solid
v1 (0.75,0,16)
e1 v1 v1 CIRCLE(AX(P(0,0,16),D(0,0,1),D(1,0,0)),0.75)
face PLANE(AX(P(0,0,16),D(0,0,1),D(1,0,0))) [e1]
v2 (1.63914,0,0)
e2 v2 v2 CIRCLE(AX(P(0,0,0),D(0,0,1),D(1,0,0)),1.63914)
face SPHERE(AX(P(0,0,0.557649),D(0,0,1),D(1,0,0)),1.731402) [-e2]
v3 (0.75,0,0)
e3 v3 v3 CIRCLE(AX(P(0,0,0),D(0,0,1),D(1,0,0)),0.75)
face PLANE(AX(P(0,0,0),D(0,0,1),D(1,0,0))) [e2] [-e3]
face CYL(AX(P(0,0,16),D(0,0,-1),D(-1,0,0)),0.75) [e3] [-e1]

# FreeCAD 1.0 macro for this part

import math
import FreeCAD as App
import Part
import Sketcher
from FreeCAD import Vector

doc = App.newDocument("Part")
params = doc.addObject("Spreadsheet::Sheet", "Params")
for row, (alias, value) in enumerate([
    ("sketch1_diameter", "1.5 mm"),
    ("pad1_length", "16 mm"),
    ("revolution_angle", "360 deg"),
], start=1):
    params.set(f"A{row}", alias)
    params.set(f"B{row}", "=" + value)
    params.setAlias(f"B{row}", alias)

body = doc.addObject("PartDesign::Body", "Body")

sketch1 = doc.addObject("Sketcher::SketchObject", "Sketch")
body.addObject(sketch1)
sketch1.AttachmentSupport = (doc.XY_Plane, [""])
sketch1.MapMode = "FlatFace"
sketch1.addGeometry(Part.Circle(Vector(0, 0, 0), Vector(0, 0, 1), 0.75), False)
sketch1.addConstraint([
    Sketcher.Constraint("Coincident", 0, 3, -1, 1),
    Sketcher.Constraint("Diameter", 0, 1.5),
])
sketch1.setExpression("Constraints[1]", "Params.sketch1_diameter")
pad1 = doc.addObject("PartDesign::Pad", "Pad")
body.addObject(pad1)
pad1.Profile = sketch1
pad1.setExpression("Length", "Params.pad1_length")

sketch2 = doc.addObject("Sketcher::SketchObject", "Sketch001")
body.addObject(sketch2)
sketch2.AttachmentSupport = (doc.XZ_Plane, [""])
sketch2.MapMode = "FlatFace"
sketch2.addGeometry([
    Part.LineSegment(Vector(0, 0, 0), Vector(1.63914, 0, 0)),
    Part.ArcOfCircle(Part.Circle(Vector(0, 0.557649, 0), Vector(0, 0, 1), 1.731402), math.radians(-90), math.radians(-18.788735)),
    Part.LineSegment(Vector(0, -1.173753, 0), Vector(0, 0, 0)),
], False)
sketch2.addConstraint([
    Sketcher.Constraint("Coincident", 0, 2, 1, 2),
    Sketcher.Constraint("Coincident", 1, 1, 2, 1),
    Sketcher.Constraint("Coincident", 2, 2, 0, 1),
    Sketcher.Constraint("Horizontal", 0),
    Sketcher.Constraint("Vertical", 2),
    Sketcher.Constraint("Coincident", 2, 2, -1, 1),
    Sketcher.Constraint("PointOnObject", 1, 3, -2),
    Sketcher.Constraint("Radius", 1, 1.731402),
    Sketcher.Constraint("DistanceX", 0, 1, 0, 2, 1.63914),
])
revolution = doc.addObject("PartDesign::Revolution", "Revolution")
body.addObject(revolution)
revolution.Profile = sketch2
revolution.ReferenceAxis = (sketch2, ["V_Axis"])
revolution.setExpression("Angle", "Params.revolution_angle")

doc.recompute()
